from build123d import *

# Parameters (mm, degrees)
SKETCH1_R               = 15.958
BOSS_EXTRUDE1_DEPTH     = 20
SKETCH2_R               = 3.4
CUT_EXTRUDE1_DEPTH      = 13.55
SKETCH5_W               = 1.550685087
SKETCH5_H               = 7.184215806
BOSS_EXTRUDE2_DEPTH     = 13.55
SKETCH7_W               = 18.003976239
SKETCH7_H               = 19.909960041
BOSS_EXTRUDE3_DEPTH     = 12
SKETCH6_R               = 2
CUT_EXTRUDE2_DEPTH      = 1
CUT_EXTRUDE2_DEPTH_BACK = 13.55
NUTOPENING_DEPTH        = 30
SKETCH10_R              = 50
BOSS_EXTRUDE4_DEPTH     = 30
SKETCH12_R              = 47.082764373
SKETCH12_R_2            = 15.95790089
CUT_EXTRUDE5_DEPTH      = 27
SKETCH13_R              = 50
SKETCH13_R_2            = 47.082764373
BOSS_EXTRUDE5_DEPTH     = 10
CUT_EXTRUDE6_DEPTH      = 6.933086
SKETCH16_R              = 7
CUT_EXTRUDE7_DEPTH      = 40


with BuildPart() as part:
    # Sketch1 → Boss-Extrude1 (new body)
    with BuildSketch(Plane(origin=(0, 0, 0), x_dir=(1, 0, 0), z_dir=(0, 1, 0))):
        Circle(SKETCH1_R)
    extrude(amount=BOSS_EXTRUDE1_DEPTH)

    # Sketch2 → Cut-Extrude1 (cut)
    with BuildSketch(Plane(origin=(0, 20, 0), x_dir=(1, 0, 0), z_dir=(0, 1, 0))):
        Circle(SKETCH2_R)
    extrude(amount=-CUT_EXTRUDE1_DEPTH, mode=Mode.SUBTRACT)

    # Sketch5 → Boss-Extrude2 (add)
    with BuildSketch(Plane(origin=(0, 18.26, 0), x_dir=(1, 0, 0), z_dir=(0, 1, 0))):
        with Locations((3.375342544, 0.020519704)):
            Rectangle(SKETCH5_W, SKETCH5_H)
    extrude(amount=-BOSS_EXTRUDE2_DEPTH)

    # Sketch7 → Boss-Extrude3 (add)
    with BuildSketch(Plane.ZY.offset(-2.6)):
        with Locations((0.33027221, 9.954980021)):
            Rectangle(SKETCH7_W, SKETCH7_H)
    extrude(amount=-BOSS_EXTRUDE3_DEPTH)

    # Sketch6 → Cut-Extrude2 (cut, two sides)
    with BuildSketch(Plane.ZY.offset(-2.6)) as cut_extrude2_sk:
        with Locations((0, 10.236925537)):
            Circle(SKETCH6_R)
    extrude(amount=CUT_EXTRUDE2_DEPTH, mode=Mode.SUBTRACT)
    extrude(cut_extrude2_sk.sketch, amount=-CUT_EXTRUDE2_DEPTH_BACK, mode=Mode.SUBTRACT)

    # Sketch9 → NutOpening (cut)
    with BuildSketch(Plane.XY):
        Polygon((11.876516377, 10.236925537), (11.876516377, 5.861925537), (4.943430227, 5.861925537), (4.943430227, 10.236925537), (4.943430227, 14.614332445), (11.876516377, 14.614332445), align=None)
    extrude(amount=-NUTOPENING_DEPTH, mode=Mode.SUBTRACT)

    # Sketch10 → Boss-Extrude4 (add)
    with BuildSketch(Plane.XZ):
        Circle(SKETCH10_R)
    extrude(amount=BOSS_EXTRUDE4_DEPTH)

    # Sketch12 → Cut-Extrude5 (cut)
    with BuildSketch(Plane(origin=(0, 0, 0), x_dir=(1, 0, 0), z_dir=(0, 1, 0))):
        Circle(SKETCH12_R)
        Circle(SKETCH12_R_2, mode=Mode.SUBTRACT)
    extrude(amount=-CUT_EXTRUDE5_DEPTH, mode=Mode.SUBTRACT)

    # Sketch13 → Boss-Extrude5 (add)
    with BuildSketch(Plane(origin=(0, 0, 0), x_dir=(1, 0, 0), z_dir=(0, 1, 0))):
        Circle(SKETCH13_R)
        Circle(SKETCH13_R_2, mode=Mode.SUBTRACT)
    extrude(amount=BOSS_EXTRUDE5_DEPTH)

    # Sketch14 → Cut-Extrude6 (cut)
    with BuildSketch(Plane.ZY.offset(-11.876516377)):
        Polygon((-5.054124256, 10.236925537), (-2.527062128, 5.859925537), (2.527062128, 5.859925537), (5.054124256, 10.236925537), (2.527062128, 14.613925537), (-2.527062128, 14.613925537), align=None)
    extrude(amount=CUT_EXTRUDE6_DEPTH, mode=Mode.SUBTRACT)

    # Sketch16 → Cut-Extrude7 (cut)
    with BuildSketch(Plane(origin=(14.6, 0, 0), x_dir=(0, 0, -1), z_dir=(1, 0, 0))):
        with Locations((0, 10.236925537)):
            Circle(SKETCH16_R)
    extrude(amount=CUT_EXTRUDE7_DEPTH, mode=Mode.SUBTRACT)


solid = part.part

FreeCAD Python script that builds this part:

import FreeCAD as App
import Part
import Sketcher

V = App.Vector
Q = App.Units.Quantity

doc = App.newDocument("Part")
body = doc.addObject("PartDesign::Body", "Body")

# Sketch on XZ plane
sketch1 = body.newObject("Sketcher::SketchObject", "Sketch")
sketch1.AttachmentSupport = (doc.getObject("XZ_Plane"), [""])
sketch1.MapMode = "FlatFace"
sketch1.addGeometry(Part.Circle(V(0, 0, 0), V(0, 0, 1), 16), False)
sketch1.addConstraint([
    Sketcher.Constraint("Coincident", 0, 3, -1, 1),
    Sketcher.Constraint("Diameter", 0, Q("31.916 mm")),
])
pad1 = body.newObject("PartDesign::Pad", "Pad")
pad1.Profile = sketch1
pad1.Length = 20
pad1.Reversed = True

# Sketch on XZ plane
sketch2 = body.newObject("Sketcher::SketchObject", "Sketch001")
sketch2.AttachmentSupport = (doc.getObject("XZ_Plane"), [""])
sketch2.MapMode = "FlatFace"
sketch2.AttachmentOffset = App.Placement(V(0, 0, -20), App.Rotation())
sketch2.addGeometry(Part.Circle(V(0, 0, 0), V(0, 0, 1), 3.4), False)
sketch2.addConstraint([
    Sketcher.Constraint("Coincident", 0, 3, -1, 1),
    Sketcher.Constraint("Diameter", 0, Q("6.8 mm")),
])
pocket1 = body.newObject("PartDesign::Pocket", "Pocket")
pocket1.Profile = sketch2
pocket1.Length = 13.55
pocket1.Reversed = True

# Sketch on XZ plane
sketch3 = body.newObject("Sketcher::SketchObject", "Sketch002")
sketch3.AttachmentSupport = (doc.getObject("XZ_Plane"), [""])
sketch3.MapMode = "FlatFace"
sketch3.AttachmentOffset = App.Placement(V(0, 0, -18.26), App.Rotation())
sketch3.addGeometry([
    Part.LineSegment(V(2.6, -3.6, 0), V(2.6, 3.6, 0)),
    Part.LineSegment(V(2.6, 3.6, 0), V(4.2, 3.6, 0)),
    Part.LineSegment(V(4.2, 3.6, 0), V(4.2, -3.6, 0)),
    Part.LineSegment(V(4.2, -3.6, 0), V(2.6, -3.6, 0)),
], False)
sketch3.addConstraint([
    Sketcher.Constraint("Coincident", 0, 2, 1, 1),
    Sketcher.Constraint("Coincident", 1, 2, 2, 1),
    Sketcher.Constraint("Coincident", 2, 2, 3, 1),
    Sketcher.Constraint("Coincident", 3, 2, 0, 1),
    Sketcher.Constraint("Vertical", 0),
    Sketcher.Constraint("Horizontal", 1),
    Sketcher.Constraint("Vertical", 2),
    Sketcher.Constraint("Horizontal", 3),
    Sketcher.Constraint("DistanceX", -1, 1, 0, 2, Q("2.6 mm")),
    Sketcher.Constraint("DistanceX", 1, 1, 1, 2, Q("1.550685 mm")),
    Sketcher.Constraint("DistanceY", 0, 1, 0, 2, Q("7.184216 mm")),
    Sketcher.Constraint("DistanceY", -1, 1, 0, 2, Q("3.571588 mm")),
])
pad2 = body.newObject("PartDesign::Pad", "Pad001")
pad2.Profile = sketch3
pad2.Length = 13.55

# Sketch on YZ plane
sketch4 = body.newObject("Sketcher::SketchObject", "Sketch003")
sketch4.AttachmentSupport = (doc.getObject("YZ_Plane"), [""])
sketch4.MapMode = "FlatFace"
sketch4.AttachmentOffset = App.Placement(V(0, 0, 2.6), App.Rotation())
sketch4.addGeometry([
    Part.LineSegment(V(20, -9, 0), V(0, -9, 0)),
    Part.LineSegment(V(0, -9, 0), V(0, 9, 0)),
    Part.LineSegment(V(0, 9, 0), V(20, 9, 0)),
    Part.LineSegment(V(20, 9, 0), V(20, -9, 0)),
], False)
sketch4.addConstraint([
    Sketcher.Constraint("Coincident", 0, 2, 1, 1),
    Sketcher.Constraint("Coincident", 1, 2, 2, 1),
    Sketcher.Constraint("Coincident", 2, 2, 3, 1),
    Sketcher.Constraint("Coincident", 3, 2, 0, 1),
    Sketcher.Constraint("Horizontal", 0),
    Sketcher.Constraint("Vertical", 1),
    Sketcher.Constraint("Horizontal", 2),
    Sketcher.Constraint("Vertical", 3),
    Sketcher.Constraint("PointOnObject", 0, 2, -2),
    Sketcher.Constraint("DistanceX", 0, 2, 0, 1, Q("19.90996 mm")),
    Sketcher.Constraint("DistanceY", 1, 1, 1, 2, Q("18.003976 mm")),
    Sketcher.Constraint("DistanceY", -1, 1, 1, 2, Q("9.33226 mm")),
])
pad3 = body.newObject("PartDesign::Pad", "Pad002")
pad3.Profile = sketch4
pad3.Length = 12

# Sketch on YZ plane
sketch5 = body.newObject("Sketcher::SketchObject", "Sketch004")
sketch5.AttachmentSupport = (doc.getObject("YZ_Plane"), [""])
sketch5.MapMode = "FlatFace"
sketch5.AttachmentOffset = App.Placement(V(0, 0, 2.6), App.Rotation())
sketch5.addGeometry(Part.Circle(V(10.2, 0, 0), V(0, 0, 1), 2), False)
sketch5.addConstraint([
    Sketcher.Constraint("PointOnObject", 0, 3, -1),
    Sketcher.Constraint("Diameter", 0, Q("4 mm")),
    Sketcher.Constraint("DistanceX", -1, 1, 0, 3, Q("10.236926 mm")),
])
pocket2 = body.newObject("PartDesign::Pocket", "Pocket001")
pocket2.Profile = sketch5
pocket2.Type = "TwoLengths"
pocket2.Length = 1
pocket2.Length2 = 13.55

# Sketch on XY plane
sketch6 = body.newObject("Sketcher::SketchObject", "Sketch005")
sketch6.AttachmentSupport = (doc.getObject("XY_Plane"), [""])
sketch6.MapMode = "FlatFace"
sketch6.addGeometry([
    Part.LineSegment(V(12, 6, 0), V(12, 15, 0)),
    Part.LineSegment(V(12, 15, 0), V(5, 15, 0)),
    Part.LineSegment(V(5, 15, 0), V(5, 6, 0)),
    Part.LineSegment(V(5, 6, 0), V(12, 6, 0)),
], False)
sketch6.addConstraint([
    Sketcher.Constraint("Coincident", 0, 2, 1, 1),
    Sketcher.Constraint("Coincident", 1, 2, 2, 1),
    Sketcher.Constraint("Coincident", 2, 2, 3, 1),
    Sketcher.Constraint("Coincident", 3, 2, 0, 1),
    Sketcher.Constraint("Vertical", 0),
    Sketcher.Constraint("Horizontal", 1),
    Sketcher.Constraint("Vertical", 2),
    Sketcher.Constraint("Horizontal", 3),
    Sketcher.Constraint("DistanceX", 1, 2, 1, 1, Q("6.933086 mm")),
    Sketcher.Constraint("DistanceY", 0, 1, 0, 2, Q("8.752407 mm")),
    Sketcher.Constraint("DistanceX", -1, 1, 1, 2, Q("4.94343 mm")),
    Sketcher.Constraint("DistanceY", -1, 1, 0, 2, Q("14.614332 mm")),
])
pocket3 = body.newObject("PartDesign::Pocket", "Pocket002")
pocket3.Profile = sketch6
pocket3.Length = 30

# Sketch on XZ plane
sketch7 = body.newObject("Sketcher::SketchObject", "Sketch006")
sketch7.AttachmentSupport = (doc.getObject("XZ_Plane"), [""])
sketch7.MapMode = "FlatFace"
sketch7.addGeometry(Part.Circle(V(0, 0, 0), V(0, 0, 1), 50), False)
sketch7.addConstraint([
    Sketcher.Constraint("Coincident", 0, 3, -1, 1),
    Sketcher.Constraint("Diameter", 0, Q("100 mm")),
])
pad4 = body.newObject("PartDesign::Pad", "Pad003")
pad4.Profile = sketch7
pad4.Length = 30

# Sketch on XZ plane
sketch8 = body.newObject("Sketcher::SketchObject", "Sketch007")
sketch8.AttachmentSupport = (doc.getObject("XZ_Plane"), [""])
sketch8.MapMode = "FlatFace"
sketch8.addGeometry([
    Part.Circle(V(0, 0, 0), V(0, 0, 1), 47),
    Part.Circle(V(0, 0, 0), V(0, 0, 1), 16),
], False)
sketch8.addConstraint([
    Sketcher.Constraint("Coincident", 0, 3, -1, 1),
    Sketcher.Constraint("Coincident", 1, 3, -1, 1),
    Sketcher.Constraint("Diameter", 1, Q("31.915802 mm")),
    Sketcher.Constraint("Diameter", 0, Q("94.165529 mm")),
])
pocket4 = body.newObject("PartDesign::Pocket", "Pocket003")
pocket4.Profile = sketch8
pocket4.Length = 27
pocket4.Reversed = True

# Sketch on XZ plane
sketch9 = body.newObject("Sketcher::SketchObject", "Sketch008")
sketch9.AttachmentSupport = (doc.getObject("XZ_Plane"), [""])
sketch9.MapMode = "FlatFace"
sketch9.addGeometry([
    Part.Circle(V(0, 0, 0), V(0, 0, 1), 50),
    Part.Circle(V(0, 0, 0), V(0, 0, 1), 47),
], False)
sketch9.addConstraint([
    Sketcher.Constraint("Coincident", 0, 3, -1, 1),
    Sketcher.Constraint("Coincident", 1, 3, -1, 1),
    Sketcher.Constraint("Diameter", 0, Q("100 mm")),
    Sketcher.Constraint("Diameter", 1, Q("94.165529 mm")),
])
pad5 = body.newObject("PartDesign::Pad", "Pad004")
pad5.Profile = sketch9
pad5.Length = 10
pad5.Reversed = True

# Sketch on YZ plane
sketch10 = body.newObject("Sketcher::SketchObject", "Sketch009")
sketch10.AttachmentSupport = (doc.getObject("YZ_Plane"), [""])
sketch10.MapMode = "FlatFace"
sketch10.AttachmentOffset = App.Placement(V(0, 0, 11.876516), App.Rotation())
sketch10.addGeometry([
    Part.LineSegment(V(10, -5, 0), V(6, -3, 0)),  # 0
    Part.LineSegment(V(6, -3, 0), V(6, 3, 0)),  # 1
    Part.LineSegment(V(6, 3, 0), V(10, 5, 0)),  # 2
    Part.LineSegment(V(10, 5, 0), V(15, 3, 0)),  # 3
    Part.LineSegment(V(15, 3, 0), V(15, -3, 0)),  # 4
    Part.LineSegment(V(15, -3, 0), V(10, -5, 0)),  # 5
], False)
sketch10.addConstraint([
    Sketcher.Constraint("Coincident", 0, 2, 1, 1),
    Sketcher.Constraint("Coincident", 1, 2, 2, 1),
    Sketcher.Constraint("Coincident", 2, 2, 3, 1),
    Sketcher.Constraint("Coincident", 3, 2, 4, 1),
    Sketcher.Constraint("Coincident", 4, 2, 5, 1),
    Sketcher.Constraint("Coincident", 5, 2, 0, 1),
    Sketcher.Constraint("Vertical", 1),
    Sketcher.Constraint("Vertical", 4),
    Sketcher.Constraint("Symmetric", 2, 2, 5, 2, -1),
    Sketcher.Constraint("Parallel", 0, 3),
    Sketcher.Constraint("Parallel", 2, 5),
    Sketcher.Constraint("Horizontal", 1, 2, 3, 2),
    Sketcher.Constraint("Horizontal", 0, 2, 4, 2),
    Sketcher.Constraint("Angle", 0, Q("150 deg")),
    Sketcher.Constraint("DistanceX", 1, 2, 2, 2, Q("4.377 mm")),
    Sketcher.Constraint("DistanceY", 1, 1, 1, 2, Q("5.054124 mm")),
    Sketcher.Constraint("DistanceX", -1, 1, 0, 2, Q("5.859926 mm")),
])
pocket5 = body.newObject("PartDesign::Pocket", "Pocket004")
pocket5.Profile = sketch10
pocket5.Length = 6.933086

# Sketch on YZ plane
sketch11 = body.newObject("Sketcher::SketchObject", "Sketch010")
sketch11.AttachmentSupport = (doc.getObject("YZ_Plane"), [""])
sketch11.MapMode = "FlatFace"
sketch11.AttachmentOffset = App.Placement(V(0, 0, 14.6), App.Rotation())
sketch11.addGeometry(Part.Circle(V(10, 0, 0), V(0, 0, 1), 7), False)
sketch11.addConstraint([
    Sketcher.Constraint("PointOnObject", 0, 3, -1),
    Sketcher.Constraint("Diameter", 0, Q("14 mm")),
    Sketcher.Constraint("DistanceX", -1, 1, 0, 3, Q("10.236926 mm")),
])
pocket6 = body.newObject("PartDesign::Pocket", "Pocket005")
pocket6.Profile = sketch11
pocket6.Length = 40
pocket6.Reversed = True

doc.recompute()
